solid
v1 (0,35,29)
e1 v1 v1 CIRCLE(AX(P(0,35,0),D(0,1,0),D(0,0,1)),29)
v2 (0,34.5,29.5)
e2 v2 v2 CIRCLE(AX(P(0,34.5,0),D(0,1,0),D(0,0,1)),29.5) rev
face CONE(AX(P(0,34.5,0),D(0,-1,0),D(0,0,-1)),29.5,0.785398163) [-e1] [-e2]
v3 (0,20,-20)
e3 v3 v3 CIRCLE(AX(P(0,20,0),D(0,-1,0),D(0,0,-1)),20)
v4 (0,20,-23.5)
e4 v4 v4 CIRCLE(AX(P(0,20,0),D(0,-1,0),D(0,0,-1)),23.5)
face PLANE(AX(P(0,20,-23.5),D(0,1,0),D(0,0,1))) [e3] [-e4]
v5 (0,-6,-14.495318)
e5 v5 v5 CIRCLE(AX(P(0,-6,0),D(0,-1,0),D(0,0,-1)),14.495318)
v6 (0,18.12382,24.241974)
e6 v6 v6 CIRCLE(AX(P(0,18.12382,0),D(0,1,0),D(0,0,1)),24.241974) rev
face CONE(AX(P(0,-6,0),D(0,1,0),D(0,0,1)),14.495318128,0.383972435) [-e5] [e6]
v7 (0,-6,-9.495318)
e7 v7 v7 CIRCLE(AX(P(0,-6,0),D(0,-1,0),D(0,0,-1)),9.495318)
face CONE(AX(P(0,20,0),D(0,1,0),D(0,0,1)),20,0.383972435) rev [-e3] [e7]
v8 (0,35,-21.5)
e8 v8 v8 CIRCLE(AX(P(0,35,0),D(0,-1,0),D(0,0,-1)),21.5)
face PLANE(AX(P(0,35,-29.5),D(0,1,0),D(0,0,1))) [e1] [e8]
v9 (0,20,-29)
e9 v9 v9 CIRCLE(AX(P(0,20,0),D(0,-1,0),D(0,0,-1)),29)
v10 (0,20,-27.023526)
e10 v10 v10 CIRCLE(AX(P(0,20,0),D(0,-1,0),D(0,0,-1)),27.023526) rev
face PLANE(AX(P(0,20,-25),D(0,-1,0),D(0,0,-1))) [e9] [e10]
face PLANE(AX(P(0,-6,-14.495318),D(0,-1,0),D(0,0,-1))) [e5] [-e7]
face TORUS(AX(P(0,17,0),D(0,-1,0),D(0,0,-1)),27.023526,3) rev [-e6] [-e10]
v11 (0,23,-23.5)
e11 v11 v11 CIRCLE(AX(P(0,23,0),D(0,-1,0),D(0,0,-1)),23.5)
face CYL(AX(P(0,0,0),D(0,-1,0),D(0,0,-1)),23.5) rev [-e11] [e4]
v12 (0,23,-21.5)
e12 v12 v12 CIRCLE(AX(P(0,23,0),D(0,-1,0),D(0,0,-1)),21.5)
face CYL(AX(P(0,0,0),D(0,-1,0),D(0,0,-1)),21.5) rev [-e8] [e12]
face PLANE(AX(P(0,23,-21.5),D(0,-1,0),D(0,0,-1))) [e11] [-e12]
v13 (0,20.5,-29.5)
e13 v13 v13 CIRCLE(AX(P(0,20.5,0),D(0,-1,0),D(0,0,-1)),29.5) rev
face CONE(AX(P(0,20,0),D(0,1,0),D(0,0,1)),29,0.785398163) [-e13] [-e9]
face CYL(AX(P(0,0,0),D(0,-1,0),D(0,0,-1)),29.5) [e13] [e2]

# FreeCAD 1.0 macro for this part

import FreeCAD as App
import Part
import Sketcher
Q = App.Units.Quantity


def edges_at(feature, points):
    """Names of the edges that pass closest to the given points."""
    edges = feature.Shape.Edges
    near = lambda p: min(range(len(edges)), key=lambda i: edges[i].distToShape(Part.Vertex(*p))[0])
    return sorted({f"Edge{near(p) + 1}" for p in points})


def add_polygon(sketch, points):
    """Adds a closed chain of lines whose ends are joined by coincident constraints."""
    first, n = sketch.GeometryCount, len(points)
    for a, b in zip(points, points[1:] + points[:1]):
        sketch.addGeometry(Part.LineSegment(App.Vector(*a, 0), App.Vector(*b, 0)), False)
    for i in range(n):
        sketch.addConstraint(Sketcher.Constraint("Coincident", first + i, 2, first + (i + 1) % n, 1))

doc = App.newDocument("Part")
params = doc.addObject("Spreadsheet::Sheet", "Params")
for row, (alias, value) in enumerate([
    ("sketch1_width", "15 mm"),
    ("sketch1_width2", "12 mm"),
    ("sketch1_height", "5 mm"),
    ("sketch1_height2", "8 mm"),
    ("sketch1_height3", "2 mm"),
    ("revolution_angle", "360 deg"),
    ("chamfer_size", "0.5 mm"),
    ("fillet_radius", "3 mm"),
], start=1):
    params.set(f"A{row}", alias)
    params.set(f"B{row}", "=" + value)
    params.setAlias(f"B{row}", alias)

body = doc.addObject("PartDesign::Body", "Body")

# Sketch on YZ plane
sketch1 = body.newObject("Sketcher::SketchObject", "Sketch")
sketch1.AttachmentSupport = (doc.getObject("YZ_Plane"), [""])
sketch1.MapMode = "FlatFace"
add_polygon(sketch1, [(20, -23.5), (20, -20), (-6, -9.495318), (-6, -14.495318), (20, -25), (20, -29.5), (35, -29.5), (35, -21.5), (23, -21.5), (23, -23.5)])  # lines 0-9
sketch1.addConstraint(Sketcher.Constraint("Vertical", 0))
sketch1.addConstraint(Sketcher.Constraint("Vertical", 2))
sketch1.addConstraint(Sketcher.Constraint("Vertical", 4))
sketch1.addConstraint(Sketcher.Constraint("Horizontal", 5))
sketch1.addConstraint(Sketcher.Constraint("Vertical", 6))
sketch1.addConstraint(Sketcher.Constraint("Horizontal", 7))
sketch1.addConstraint(Sketcher.Constraint("Vertical", 8))
sketch1.addConstraint(Sketcher.Constraint("Horizontal", 9))
sketch1.addConstraint(Sketcher.Constraint("Parallel", 1, 3))
sketch1.addConstraint(Sketcher.Constraint("Vertical", 0, 2, 3, 2))
sketch1.addConstraint(Sketcher.Constraint("DistanceX", 5, 1, 5, 2, Q("15 mm")))
sketch1.addConstraint(Sketcher.Constraint("DistanceX", 7, 2, 7, 1, Q("12 mm")))
sketch1.addConstraint(Sketcher.Constraint("DistanceY", 2, 2, 2, 1, Q("5 mm")))
sketch1.addConstraint(Sketcher.Constraint("DistanceY", 6, 1, 6, 2, Q("8 mm")))
sketch1.addConstraint(Sketcher.Constraint("DistanceY", 8, 2, 8, 1, Q("2 mm")))
sketch1.addConstraint(Sketcher.Constraint("Angle", 1, Q("158 deg")))
sketch1.addConstraint(Sketcher.Constraint("DistanceY", 0, 1, 0, 2, Q("3.5 mm")))
sketch1.addConstraint(Sketcher.Constraint("DistanceX", -1, 1, 0, 2, Q("20 mm")))
sketch1.addConstraint(Sketcher.Constraint("DistanceY", 0, 2, -1, 1, Q("20 mm")))
sketch1.addConstraint(Sketcher.Constraint("DistanceX", 1, 2, -1, 1, Q("6 mm")))
sketch1.setExpression("Constraints[20]", "Params.sketch1_width")
sketch1.setExpression("Constraints[21]", "Params.sketch1_width2")
sketch1.setExpression("Constraints[22]", "Params.sketch1_height")
sketch1.setExpression("Constraints[23]", "Params.sketch1_height2")
sketch1.setExpression("Constraints[24]", "Params.sketch1_height3")
revolution = body.newObject("PartDesign::Revolution", "Revolution")
revolution.Profile = sketch1
revolution.ReferenceAxis = (sketch1, ["H_Axis"])
revolution.setExpression("Angle", "Params.revolution_angle")
doc.recompute()

chamfer = body.newObject("PartDesign::Chamfer", "Chamfer")
chamfer.Base = (revolution, edges_at(revolution, [(0, 35, 29.5), (0, 20, 29.5)]))
chamfer.setExpression("Size", "Params.chamfer_size")
doc.recompute()

fillet = body.newObject("PartDesign::Fillet", "Fillet")
fillet.Base = (chamfer, edges_at(chamfer, [(0, 20, 25)]))
fillet.setExpression("Radius", "Params.fillet_radius")

doc.recompute()
